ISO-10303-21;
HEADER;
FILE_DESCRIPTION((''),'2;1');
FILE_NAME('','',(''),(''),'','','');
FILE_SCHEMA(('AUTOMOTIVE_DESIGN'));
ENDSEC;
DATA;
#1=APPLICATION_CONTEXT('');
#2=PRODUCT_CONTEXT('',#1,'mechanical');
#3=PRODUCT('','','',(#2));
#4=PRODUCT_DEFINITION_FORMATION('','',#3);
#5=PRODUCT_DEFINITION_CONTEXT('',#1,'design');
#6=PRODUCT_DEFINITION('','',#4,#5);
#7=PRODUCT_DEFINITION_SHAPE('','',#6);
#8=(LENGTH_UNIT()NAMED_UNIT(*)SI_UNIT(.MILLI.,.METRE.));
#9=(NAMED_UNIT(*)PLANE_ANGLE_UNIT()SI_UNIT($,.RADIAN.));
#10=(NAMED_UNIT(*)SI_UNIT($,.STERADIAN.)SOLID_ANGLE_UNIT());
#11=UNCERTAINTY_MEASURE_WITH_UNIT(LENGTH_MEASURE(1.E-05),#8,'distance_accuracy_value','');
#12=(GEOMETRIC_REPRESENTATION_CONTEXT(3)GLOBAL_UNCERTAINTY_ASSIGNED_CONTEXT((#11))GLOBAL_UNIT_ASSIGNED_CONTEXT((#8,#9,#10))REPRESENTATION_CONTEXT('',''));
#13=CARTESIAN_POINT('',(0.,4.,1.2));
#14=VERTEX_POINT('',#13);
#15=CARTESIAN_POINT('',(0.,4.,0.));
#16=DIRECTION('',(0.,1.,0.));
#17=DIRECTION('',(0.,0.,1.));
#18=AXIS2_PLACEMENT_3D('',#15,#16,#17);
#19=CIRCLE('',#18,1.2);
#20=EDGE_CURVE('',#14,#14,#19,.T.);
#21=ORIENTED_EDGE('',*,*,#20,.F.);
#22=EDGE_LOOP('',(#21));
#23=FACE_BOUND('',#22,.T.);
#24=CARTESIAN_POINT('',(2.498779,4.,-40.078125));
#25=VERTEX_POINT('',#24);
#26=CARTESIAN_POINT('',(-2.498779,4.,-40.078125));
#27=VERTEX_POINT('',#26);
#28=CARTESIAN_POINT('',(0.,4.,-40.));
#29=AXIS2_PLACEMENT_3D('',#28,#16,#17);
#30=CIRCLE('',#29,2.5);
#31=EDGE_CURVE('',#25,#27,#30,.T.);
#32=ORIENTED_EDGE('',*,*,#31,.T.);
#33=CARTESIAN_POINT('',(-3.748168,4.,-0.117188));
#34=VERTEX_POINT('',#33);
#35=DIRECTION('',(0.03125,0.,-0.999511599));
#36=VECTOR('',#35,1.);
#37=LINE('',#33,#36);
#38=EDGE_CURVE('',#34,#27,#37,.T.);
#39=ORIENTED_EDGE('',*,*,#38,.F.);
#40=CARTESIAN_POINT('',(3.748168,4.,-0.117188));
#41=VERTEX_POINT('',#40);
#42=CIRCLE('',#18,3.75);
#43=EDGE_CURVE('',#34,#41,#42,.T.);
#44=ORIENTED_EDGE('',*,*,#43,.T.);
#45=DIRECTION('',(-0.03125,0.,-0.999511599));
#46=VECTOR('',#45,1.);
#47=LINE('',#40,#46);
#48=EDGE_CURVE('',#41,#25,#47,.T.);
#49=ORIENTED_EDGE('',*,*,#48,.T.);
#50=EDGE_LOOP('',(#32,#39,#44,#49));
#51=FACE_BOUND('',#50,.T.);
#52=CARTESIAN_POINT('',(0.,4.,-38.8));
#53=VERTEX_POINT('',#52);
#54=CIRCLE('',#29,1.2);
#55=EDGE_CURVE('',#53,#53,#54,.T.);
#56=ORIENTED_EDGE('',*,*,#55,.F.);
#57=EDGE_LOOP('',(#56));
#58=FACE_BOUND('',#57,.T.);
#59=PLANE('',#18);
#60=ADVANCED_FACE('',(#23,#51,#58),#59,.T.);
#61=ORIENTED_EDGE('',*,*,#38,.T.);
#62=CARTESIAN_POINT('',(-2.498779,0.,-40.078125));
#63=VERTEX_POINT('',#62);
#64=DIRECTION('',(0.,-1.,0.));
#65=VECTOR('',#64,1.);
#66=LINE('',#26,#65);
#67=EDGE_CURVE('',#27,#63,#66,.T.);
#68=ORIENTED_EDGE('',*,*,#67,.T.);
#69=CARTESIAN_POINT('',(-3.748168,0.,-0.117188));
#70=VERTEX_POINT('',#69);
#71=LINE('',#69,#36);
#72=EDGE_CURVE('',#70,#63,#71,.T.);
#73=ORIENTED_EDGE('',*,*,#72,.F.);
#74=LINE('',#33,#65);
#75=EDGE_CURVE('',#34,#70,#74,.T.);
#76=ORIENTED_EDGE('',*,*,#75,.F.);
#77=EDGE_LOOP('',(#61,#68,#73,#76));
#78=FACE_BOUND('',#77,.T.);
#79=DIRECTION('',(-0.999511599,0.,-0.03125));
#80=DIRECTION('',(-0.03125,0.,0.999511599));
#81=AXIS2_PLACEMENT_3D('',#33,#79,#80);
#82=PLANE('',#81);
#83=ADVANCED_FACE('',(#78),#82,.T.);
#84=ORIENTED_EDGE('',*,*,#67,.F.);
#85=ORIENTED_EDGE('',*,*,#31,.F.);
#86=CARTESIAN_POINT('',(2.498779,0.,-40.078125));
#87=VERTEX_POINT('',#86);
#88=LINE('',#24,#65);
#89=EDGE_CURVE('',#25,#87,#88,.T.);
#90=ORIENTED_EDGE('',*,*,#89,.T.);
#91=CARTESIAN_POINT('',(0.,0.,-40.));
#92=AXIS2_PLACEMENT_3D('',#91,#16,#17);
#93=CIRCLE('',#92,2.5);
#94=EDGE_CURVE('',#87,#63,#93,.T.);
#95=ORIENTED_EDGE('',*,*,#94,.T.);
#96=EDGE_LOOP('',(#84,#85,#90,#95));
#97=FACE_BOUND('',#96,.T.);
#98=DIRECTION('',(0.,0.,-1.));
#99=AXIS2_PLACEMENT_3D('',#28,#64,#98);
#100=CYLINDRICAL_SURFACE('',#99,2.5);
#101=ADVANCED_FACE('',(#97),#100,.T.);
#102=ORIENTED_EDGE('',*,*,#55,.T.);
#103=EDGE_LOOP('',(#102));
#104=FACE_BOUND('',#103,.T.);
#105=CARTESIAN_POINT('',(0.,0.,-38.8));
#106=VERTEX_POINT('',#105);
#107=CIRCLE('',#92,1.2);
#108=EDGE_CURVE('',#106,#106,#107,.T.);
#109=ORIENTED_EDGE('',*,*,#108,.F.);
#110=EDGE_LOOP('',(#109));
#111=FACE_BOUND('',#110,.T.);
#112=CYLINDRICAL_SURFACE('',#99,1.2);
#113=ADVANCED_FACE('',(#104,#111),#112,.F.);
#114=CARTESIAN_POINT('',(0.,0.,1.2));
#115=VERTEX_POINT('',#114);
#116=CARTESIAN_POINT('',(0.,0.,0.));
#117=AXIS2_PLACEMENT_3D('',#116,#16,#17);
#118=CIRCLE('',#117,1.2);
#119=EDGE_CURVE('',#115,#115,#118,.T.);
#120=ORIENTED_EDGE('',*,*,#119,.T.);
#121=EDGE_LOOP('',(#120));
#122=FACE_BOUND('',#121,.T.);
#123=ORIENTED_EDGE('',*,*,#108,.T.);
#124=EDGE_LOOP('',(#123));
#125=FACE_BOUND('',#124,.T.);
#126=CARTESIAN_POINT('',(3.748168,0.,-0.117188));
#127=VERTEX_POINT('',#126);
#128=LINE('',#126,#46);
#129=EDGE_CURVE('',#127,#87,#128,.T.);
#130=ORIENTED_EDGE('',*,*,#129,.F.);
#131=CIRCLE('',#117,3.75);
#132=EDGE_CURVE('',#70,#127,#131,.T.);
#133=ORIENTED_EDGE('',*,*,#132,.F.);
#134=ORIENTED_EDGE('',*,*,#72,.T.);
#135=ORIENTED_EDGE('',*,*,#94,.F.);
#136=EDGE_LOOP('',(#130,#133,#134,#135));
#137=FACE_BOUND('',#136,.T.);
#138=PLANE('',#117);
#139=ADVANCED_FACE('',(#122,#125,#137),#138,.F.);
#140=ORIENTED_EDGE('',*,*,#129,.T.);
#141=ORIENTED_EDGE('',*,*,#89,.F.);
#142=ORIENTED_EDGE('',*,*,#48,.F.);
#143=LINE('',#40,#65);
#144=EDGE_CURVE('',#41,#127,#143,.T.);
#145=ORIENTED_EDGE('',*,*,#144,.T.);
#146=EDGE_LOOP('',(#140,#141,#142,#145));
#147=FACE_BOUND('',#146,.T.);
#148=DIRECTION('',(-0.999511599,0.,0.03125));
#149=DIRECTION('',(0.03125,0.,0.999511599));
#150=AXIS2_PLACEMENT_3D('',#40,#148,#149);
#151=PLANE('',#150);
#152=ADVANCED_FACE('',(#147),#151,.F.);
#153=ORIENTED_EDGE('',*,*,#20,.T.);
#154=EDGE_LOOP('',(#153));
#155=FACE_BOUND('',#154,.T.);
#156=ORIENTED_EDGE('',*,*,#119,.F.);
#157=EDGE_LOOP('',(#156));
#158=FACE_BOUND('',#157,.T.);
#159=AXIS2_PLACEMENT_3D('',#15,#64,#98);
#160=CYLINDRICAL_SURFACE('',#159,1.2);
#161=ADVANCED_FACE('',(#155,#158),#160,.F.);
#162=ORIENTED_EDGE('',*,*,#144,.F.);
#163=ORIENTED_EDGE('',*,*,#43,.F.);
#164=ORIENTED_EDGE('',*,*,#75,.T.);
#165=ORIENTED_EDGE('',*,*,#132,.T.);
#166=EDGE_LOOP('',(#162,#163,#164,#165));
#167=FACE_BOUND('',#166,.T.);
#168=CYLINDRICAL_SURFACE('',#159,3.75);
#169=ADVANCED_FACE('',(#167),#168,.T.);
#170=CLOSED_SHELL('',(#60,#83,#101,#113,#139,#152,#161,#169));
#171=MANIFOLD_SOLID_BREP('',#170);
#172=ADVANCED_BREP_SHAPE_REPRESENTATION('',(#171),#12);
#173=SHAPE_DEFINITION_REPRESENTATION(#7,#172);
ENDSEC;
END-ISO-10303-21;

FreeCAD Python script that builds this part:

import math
import FreeCAD as App
import Part
import Sketcher

doc = App.newDocument("Part")
body = doc.addObject("PartDesign::Body", "Body")

# Sketch on XZ plane
sketch1 = body.newObject("Sketcher::SketchObject", "Sketch")
sketch1.AttachmentSupport = (doc.getObject("XZ_Plane"), [""])
sketch1.MapMode = "FlatFace"
sketch1.addGeometry([
    Part.ArcOfCircle(Part.Circle(App.Vector(0, 0, 0), App.Vector(0, 0, 1), 3.75), math.radians(-1.790785), math.radians(181.790785)),  # 0
    Part.LineSegment(App.Vector(3.748168, -0.117188, 0), App.Vector(2.498779, -40.078125, 0)),  # 1
    Part.ArcOfCircle(Part.Circle(App.Vector(0, -40, 0), App.Vector(0, 0, 1), 2.5), math.radians(-178.209215), math.radians(-1.790785)),  # 2
    Part.LineSegment(App.Vector(-2.498779, -40.078125, 0), App.Vector(-3.748168, -0.117188, 0)),  # 3
    Part.Circle(App.Vector(0, 0, 0), App.Vector(0, 0, 1), 1.2),  # 4
    Part.Circle(App.Vector(0, -40, 0), App.Vector(0, 0, 1), 1.2),  # 5
], False)
sketch1.addConstraint([
    Sketcher.Constraint("Tangent", 0, 1, 1, 1),
    Sketcher.Constraint("Tangent", 1, 2, 2, 2),
    Sketcher.Constraint("Tangent", 2, 1, 3, 1),
    Sketcher.Constraint("Tangent", 3, 2, 0, 2),
    Sketcher.Constraint("Coincident", 0, 3, -1, 1),
    Sketcher.Constraint("Coincident", 4, 3, -1, 1),
    Sketcher.Constraint("Coincident", 5, 3, 2, 3),
    Sketcher.Constraint("Equal", 4, 5),
    Sketcher.Constraint("PointOnObject", 2, 3, -2),
    Sketcher.Constraint("Diameter", 4, 2.4),
    Sketcher.Constraint("Radius", 2, 2.5),
    Sketcher.Constraint("Radius", 0, 3.75),
    Sketcher.Constraint("DistanceY", 2, 3, -1, 1, 40.0),
])
pad1 = body.newObject("PartDesign::Pad", "Pad")
pad1.Profile = sketch1
pad1.Length = 4
pad1.Reversed = True

doc.recompute()
